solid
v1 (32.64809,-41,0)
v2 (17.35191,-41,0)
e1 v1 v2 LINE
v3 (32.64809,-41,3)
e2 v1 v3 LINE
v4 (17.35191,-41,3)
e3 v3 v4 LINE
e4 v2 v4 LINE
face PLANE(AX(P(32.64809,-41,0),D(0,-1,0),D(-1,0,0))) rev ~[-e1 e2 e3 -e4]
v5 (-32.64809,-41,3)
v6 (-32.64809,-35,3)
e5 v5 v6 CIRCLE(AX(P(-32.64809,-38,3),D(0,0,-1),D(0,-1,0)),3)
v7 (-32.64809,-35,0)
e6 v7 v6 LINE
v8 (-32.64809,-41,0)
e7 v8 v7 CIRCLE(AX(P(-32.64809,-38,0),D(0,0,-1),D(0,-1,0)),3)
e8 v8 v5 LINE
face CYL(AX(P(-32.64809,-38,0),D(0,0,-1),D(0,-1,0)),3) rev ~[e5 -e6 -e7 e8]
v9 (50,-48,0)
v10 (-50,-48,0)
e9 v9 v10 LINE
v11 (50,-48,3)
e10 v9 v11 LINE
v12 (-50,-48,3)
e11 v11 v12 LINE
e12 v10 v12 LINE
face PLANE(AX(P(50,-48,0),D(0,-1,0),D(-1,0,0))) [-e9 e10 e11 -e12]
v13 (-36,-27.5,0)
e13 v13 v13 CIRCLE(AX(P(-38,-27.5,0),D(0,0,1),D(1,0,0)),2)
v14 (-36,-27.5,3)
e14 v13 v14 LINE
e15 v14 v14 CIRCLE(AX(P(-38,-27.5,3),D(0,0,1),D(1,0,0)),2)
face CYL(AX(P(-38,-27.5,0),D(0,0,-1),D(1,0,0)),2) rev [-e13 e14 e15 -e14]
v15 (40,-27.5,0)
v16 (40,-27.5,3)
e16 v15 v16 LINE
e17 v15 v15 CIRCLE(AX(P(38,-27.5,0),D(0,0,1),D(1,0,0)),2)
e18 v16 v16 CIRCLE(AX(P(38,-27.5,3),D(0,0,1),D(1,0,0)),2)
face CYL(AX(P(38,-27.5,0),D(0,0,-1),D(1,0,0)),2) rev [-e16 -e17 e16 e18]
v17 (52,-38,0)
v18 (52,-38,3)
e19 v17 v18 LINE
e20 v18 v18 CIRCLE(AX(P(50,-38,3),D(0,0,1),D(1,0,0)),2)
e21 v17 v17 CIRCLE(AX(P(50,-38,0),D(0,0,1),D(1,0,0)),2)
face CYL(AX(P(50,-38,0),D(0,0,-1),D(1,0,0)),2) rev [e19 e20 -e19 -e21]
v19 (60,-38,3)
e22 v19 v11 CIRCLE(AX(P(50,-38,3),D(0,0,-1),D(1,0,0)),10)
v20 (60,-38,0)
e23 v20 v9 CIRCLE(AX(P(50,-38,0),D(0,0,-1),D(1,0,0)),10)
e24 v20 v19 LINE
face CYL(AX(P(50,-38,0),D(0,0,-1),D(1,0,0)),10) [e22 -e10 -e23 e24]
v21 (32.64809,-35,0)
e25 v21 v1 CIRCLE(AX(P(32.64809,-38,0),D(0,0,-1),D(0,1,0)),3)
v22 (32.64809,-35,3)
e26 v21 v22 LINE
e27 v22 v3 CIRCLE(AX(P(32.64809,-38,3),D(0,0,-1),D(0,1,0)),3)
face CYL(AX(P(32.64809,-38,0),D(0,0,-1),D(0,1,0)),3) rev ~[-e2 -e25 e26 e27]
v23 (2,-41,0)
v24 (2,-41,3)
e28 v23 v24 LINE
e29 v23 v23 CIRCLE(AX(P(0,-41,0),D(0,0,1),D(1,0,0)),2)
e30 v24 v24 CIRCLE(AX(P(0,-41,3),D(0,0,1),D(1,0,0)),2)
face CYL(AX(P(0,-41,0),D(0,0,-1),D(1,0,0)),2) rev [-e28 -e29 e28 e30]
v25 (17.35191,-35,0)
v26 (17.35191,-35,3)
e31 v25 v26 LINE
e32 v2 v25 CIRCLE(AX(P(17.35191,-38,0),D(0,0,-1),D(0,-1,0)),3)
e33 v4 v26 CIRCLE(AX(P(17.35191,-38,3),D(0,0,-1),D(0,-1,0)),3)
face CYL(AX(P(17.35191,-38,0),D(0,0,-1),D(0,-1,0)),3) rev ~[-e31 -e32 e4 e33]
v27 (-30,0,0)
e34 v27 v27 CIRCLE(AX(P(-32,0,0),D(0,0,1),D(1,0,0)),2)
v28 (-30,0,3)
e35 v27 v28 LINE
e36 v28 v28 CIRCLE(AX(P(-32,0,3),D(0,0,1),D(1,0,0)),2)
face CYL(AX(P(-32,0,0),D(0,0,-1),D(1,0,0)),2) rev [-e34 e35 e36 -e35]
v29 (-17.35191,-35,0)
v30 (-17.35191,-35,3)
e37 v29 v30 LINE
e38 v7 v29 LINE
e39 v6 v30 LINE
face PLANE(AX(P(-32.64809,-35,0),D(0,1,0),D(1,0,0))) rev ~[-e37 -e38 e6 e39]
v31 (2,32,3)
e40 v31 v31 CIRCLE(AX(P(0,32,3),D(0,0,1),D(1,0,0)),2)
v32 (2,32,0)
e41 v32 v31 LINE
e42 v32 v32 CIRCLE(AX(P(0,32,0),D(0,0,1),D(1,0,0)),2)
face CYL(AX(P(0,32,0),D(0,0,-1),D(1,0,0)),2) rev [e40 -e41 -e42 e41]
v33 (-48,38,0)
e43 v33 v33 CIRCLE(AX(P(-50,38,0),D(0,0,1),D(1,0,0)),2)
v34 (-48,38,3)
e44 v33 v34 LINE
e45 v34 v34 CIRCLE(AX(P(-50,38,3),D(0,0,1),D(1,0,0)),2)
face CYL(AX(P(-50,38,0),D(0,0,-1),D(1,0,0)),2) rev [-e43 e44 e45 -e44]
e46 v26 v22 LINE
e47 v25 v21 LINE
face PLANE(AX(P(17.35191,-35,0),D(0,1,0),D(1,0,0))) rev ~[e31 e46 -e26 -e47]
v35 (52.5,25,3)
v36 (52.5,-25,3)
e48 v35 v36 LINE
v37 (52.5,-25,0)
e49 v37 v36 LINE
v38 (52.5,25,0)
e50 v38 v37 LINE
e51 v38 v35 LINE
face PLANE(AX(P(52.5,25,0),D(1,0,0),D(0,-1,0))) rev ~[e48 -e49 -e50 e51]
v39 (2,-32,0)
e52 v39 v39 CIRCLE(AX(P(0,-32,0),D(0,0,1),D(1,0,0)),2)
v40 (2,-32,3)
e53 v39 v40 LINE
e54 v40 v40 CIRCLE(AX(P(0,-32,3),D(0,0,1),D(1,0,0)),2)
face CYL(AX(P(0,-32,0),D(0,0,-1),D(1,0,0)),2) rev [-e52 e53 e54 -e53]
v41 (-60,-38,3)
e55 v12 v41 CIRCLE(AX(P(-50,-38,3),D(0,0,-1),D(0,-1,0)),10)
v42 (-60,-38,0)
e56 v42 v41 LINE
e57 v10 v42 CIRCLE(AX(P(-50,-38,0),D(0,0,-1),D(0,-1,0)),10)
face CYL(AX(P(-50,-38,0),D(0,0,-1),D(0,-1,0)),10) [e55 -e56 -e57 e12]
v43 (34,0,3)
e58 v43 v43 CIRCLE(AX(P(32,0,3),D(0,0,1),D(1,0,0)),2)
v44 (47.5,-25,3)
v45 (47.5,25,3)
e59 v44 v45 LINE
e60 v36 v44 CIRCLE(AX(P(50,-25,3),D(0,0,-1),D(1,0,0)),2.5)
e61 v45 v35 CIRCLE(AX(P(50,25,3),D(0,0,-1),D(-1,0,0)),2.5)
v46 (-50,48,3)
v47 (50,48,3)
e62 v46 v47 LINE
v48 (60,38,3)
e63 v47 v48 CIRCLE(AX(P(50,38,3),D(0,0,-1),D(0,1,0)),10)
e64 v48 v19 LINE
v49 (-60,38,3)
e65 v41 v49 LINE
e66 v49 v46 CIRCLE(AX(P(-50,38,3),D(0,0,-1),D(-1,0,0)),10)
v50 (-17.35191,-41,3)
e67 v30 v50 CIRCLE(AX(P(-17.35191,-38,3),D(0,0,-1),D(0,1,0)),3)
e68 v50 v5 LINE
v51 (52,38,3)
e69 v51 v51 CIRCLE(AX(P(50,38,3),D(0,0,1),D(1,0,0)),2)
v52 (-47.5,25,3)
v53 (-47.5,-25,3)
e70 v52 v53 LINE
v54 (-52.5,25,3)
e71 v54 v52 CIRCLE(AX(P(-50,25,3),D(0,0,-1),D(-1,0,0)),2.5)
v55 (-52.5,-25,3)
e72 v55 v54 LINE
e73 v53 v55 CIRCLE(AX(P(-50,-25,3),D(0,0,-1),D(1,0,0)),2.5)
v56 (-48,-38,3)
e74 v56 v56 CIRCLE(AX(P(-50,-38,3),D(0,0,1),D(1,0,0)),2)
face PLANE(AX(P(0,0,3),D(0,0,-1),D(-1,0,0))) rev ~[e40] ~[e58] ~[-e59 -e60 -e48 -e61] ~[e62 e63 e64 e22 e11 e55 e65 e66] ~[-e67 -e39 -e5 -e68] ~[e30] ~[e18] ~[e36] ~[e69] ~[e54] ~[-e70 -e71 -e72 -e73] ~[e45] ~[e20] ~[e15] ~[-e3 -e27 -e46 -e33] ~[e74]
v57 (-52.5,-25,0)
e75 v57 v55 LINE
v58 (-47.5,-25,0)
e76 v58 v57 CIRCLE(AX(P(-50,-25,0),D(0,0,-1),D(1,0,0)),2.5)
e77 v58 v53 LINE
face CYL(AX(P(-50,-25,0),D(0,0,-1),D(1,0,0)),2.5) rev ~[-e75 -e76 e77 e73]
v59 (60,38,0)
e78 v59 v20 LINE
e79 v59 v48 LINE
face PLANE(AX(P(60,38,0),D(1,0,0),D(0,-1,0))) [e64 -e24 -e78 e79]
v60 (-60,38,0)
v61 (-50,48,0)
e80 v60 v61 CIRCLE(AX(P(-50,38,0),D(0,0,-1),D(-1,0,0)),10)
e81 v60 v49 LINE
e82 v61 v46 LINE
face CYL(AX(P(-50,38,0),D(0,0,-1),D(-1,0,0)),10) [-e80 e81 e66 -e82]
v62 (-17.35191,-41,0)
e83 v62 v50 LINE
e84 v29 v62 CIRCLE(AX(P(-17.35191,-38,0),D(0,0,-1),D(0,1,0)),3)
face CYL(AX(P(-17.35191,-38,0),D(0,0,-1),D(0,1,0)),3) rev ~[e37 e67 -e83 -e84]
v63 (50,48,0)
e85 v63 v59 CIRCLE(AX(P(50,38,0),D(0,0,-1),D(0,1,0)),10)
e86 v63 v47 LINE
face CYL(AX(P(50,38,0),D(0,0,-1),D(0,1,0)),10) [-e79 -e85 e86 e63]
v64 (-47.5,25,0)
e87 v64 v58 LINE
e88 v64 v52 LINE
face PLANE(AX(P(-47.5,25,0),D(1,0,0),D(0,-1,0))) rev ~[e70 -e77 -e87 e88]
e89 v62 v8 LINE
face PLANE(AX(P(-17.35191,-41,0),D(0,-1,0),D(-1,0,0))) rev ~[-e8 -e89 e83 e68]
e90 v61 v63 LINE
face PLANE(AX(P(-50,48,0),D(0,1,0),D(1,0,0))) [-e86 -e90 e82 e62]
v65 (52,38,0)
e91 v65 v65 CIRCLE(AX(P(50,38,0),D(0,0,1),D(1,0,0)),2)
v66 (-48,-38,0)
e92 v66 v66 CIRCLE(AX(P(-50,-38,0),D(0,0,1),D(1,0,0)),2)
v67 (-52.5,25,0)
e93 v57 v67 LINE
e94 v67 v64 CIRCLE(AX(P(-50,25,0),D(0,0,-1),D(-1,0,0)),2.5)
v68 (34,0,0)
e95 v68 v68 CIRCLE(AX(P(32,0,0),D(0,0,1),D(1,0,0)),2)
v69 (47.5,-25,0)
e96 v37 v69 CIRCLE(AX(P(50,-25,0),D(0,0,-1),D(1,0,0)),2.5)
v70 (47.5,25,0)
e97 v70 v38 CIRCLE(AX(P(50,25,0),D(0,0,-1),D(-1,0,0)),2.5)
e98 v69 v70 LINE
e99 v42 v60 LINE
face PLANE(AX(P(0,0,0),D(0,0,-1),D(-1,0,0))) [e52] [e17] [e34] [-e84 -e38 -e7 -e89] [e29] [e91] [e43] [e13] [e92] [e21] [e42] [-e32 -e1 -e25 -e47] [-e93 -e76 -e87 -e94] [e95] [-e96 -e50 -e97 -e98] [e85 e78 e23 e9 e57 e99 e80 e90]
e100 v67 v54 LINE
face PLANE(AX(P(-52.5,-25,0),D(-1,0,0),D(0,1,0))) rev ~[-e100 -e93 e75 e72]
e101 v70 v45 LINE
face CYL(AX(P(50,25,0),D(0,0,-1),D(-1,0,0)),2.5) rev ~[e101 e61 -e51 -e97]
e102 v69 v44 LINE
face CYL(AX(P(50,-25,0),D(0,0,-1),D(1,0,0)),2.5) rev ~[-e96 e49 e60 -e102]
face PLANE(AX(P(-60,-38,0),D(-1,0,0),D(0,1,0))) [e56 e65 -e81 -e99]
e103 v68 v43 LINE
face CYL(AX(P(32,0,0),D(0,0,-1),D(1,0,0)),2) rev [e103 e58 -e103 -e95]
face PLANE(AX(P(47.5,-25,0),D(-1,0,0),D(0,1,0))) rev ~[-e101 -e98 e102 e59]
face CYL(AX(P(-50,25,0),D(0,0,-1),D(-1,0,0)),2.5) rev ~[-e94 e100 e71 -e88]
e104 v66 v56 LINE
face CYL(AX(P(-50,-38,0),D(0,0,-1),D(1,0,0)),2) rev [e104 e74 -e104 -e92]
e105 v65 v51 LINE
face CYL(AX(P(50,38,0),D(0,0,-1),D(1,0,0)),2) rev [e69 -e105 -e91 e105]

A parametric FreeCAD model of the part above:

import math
import FreeCAD as App
import Part
import Sketcher

V = App.Vector

doc = App.newDocument("Part")
body = doc.addObject("PartDesign::Body", "Body")

sketch1 = body.newObject("Sketcher::SketchObject", "Sketch")
sketch1.AttachmentSupport = (doc.getObject("XY_Plane"), [""])
sketch1.MapMode = "FlatFace"
sketch1.addGeometry([
    Part.LineSegment(V(50, 48, 0), V(-50, 48, 0)),
    Part.ArcOfCircle(Part.Circle(V(-50, 38, 0), V(0, 0, 1), 10), math.radians(90), math.radians(180)),
    Part.LineSegment(V(-60, 38, 0), V(-60, -38, 0)),
    Part.ArcOfCircle(Part.Circle(V(-50, -38, 0), V(0, 0, 1), 10), math.radians(180), math.radians(270)),
    Part.LineSegment(V(-50, -48, 0), V(50, -48, 0)),
    Part.ArcOfCircle(Part.Circle(V(50, -38, 0), V(0, 0, 1), 10), math.radians(-90), math.radians(0)),
    Part.LineSegment(V(60, -38, 0), V(60, 38, 0)),
    Part.ArcOfCircle(Part.Circle(V(50, 38, 0), V(0, 0, 1), 10), math.radians(0), math.radians(90)),
    Part.Circle(V(50, -38, 0), V(0, 0, 1), 2),
    Part.Circle(V(38, -27.5, 0), V(0, 0, 1), 2),
    Part.LineSegment(V(17.4, -35, 0), V(32.6, -35, 0)),
    Part.ArcOfCircle(Part.Circle(V(32.6, -38, 0), V(0, 0, 1), 3), math.radians(-90), math.radians(90)),
    Part.LineSegment(V(32.6, -41, 0), V(17.4, -41, 0)),
    Part.ArcOfCircle(Part.Circle(V(17.4, -38, 0), V(0, 0, 1), 3), math.radians(90), math.radians(270)),
    Part.Circle(V(0, -41, 0), V(0, 0, 1), 2),
    Part.LineSegment(V(-32.6, -35, 0), V(-17.4, -35, 0)),
    Part.ArcOfCircle(Part.Circle(V(-17.4, -38, 0), V(0, 0, 1), 3), math.radians(-90), math.radians(90)),
    Part.LineSegment(V(-17.4, -41, 0), V(-32.6, -41, 0)),
    Part.ArcOfCircle(Part.Circle(V(-32.6, -38, 0), V(0, 0, 1), 3), math.radians(90), math.radians(270)),
    Part.Circle(V(0, -32, 0), V(0, 0, 1), 2),
    Part.Circle(V(-50, -38, 0), V(0, 0, 1), 2),
    Part.Circle(V(-38, -27.5, 0), V(0, 0, 1), 2),
    Part.LineSegment(V(52.5, 25, 0), V(52.5, -25, 0)),
    Part.ArcOfCircle(Part.Circle(V(50, -25, 0), V(0, 0, 1), 2.5), math.radians(180), math.radians(360)),
    Part.LineSegment(V(47.5, -25, 0), V(47.5, 25, 0)),
    Part.ArcOfCircle(Part.Circle(V(50, 25, 0), V(0, 0, 1), 2.5), math.radians(0), math.radians(180)),
    Part.Circle(V(32, 0, 0), V(0, 0, 1), 2),
    Part.Circle(V(50, 38, 0), V(0, 0, 1), 2),
    Part.Circle(V(-32, 0, 0), V(0, 0, 1), 2),
    Part.LineSegment(V(-47.5, 25, 0), V(-47.5, -25, 0)),
    Part.ArcOfCircle(Part.Circle(V(-50, -25, 0), V(0, 0, 1), 2.5), math.radians(180), math.radians(360)),
    Part.LineSegment(V(-52.5, -25, 0), V(-52.5, 25, 0)),
    Part.ArcOfCircle(Part.Circle(V(-50, 25, 0), V(0, 0, 1), 2.5), math.radians(0), math.radians(180)),
    Part.Circle(V(0, 32, 0), V(0, 0, 1), 2),
    Part.Circle(V(-50, 38, 0), V(0, 0, 1), 2),
], False)
sketch1.addConstraint([
    Sketcher.Constraint("Tangent", 0, 2, 1, 1),
    Sketcher.Constraint("Tangent", 1, 2, 2, 1),
    Sketcher.Constraint("Tangent", 2, 2, 3, 1),
    Sketcher.Constraint("Tangent", 3, 2, 4, 1),
    Sketcher.Constraint("Tangent", 4, 2, 5, 1),
    Sketcher.Constraint("Tangent", 5, 2, 6, 1),
    Sketcher.Constraint("Tangent", 6, 2, 7, 1),
    Sketcher.Constraint("Tangent", 7, 2, 0, 1),
    Sketcher.Constraint("Tangent", 10, 2, 11, 2),
    Sketcher.Constraint("Tangent", 11, 1, 12, 1),
    Sketcher.Constraint("Tangent", 12, 2, 13, 2),
    Sketcher.Constraint("Tangent", 13, 1, 10, 1),
    Sketcher.Constraint("Tangent", 15, 2, 16, 2),
    Sketcher.Constraint("Tangent", 16, 1, 17, 1),
    Sketcher.Constraint("Tangent", 17, 2, 18, 2),
    Sketcher.Constraint("Tangent", 18, 1, 15, 1),
    Sketcher.Constraint("Tangent", 22, 2, 23, 2),
    Sketcher.Constraint("Tangent", 23, 1, 24, 1),
    Sketcher.Constraint("Tangent", 24, 2, 25, 2),
    Sketcher.Constraint("Tangent", 25, 1, 22, 1),
    Sketcher.Constraint("Tangent", 29, 2, 30, 2),
    Sketcher.Constraint("Tangent", 30, 1, 31, 1),
    Sketcher.Constraint("Tangent", 31, 2, 32, 2),
    Sketcher.Constraint("Tangent", 32, 1, 29, 1),
    Sketcher.Constraint("Horizontal", 0),
    Sketcher.Constraint("Vertical", 2),
    Sketcher.Constraint("Horizontal", 4),
    Sketcher.Constraint("Vertical", 6),
    Sketcher.Constraint("Horizontal", 10),
    Sketcher.Constraint("Horizontal", 12),
    Sketcher.Constraint("Horizontal", 15),
    Sketcher.Constraint("Horizontal", 17),
    Sketcher.Constraint("Vertical", 22),
    Sketcher.Constraint("Vertical", 24),
    Sketcher.Constraint("Vertical", 29),
    Sketcher.Constraint("Vertical", 31),
    Sketcher.Constraint("Coincident", 8, 3, 5, 3),
    Sketcher.Constraint("Coincident", 20, 3, 3, 3),
    Sketcher.Constraint("Coincident", 27, 3, 7, 3),
    Sketcher.Constraint("Coincident", 34, 3, 1, 3),
    Sketcher.Constraint("Equal", 1, 3),
    Sketcher.Constraint("Equal", 3, 5),
    Sketcher.Constraint("Equal", 5, 7),
    Sketcher.Constraint("Equal", 8, 9),
    Sketcher.Constraint("Equal", 9, 14),
    Sketcher.Constraint("Equal", 13, 16),
    Sketcher.Constraint("Equal", 14, 19),
    Sketcher.Constraint("Equal", 19, 20),
    Sketcher.Constraint("Equal", 20, 21),
    Sketcher.Constraint("Equal", 21, 26),
    Sketcher.Constraint("Equal", 26, 27),
    Sketcher.Constraint("Equal", 27, 28),
    Sketcher.Constraint("Equal", 25, 30),
    Sketcher.Constraint("Equal", 28, 33),
    Sketcher.Constraint("Equal", 33, 34),
    Sketcher.Constraint("Symmetric", 1, 3, 5, 3, -1, 1),
    Sketcher.Constraint("Symmetric", 26, 3, 28, 3, -1, 1),
    Sketcher.Constraint("Symmetric", 25, 3, 30, 3, -1, 1),
    Sketcher.Constraint("Symmetric", 19, 3, 33, 3, -1, 1),
    Sketcher.Constraint("Symmetric", 13, 3, 16, 3, -2),
    Sketcher.Constraint("Symmetric", 9, 3, 21, 3, -2),
    Sketcher.Constraint("PointOnObject", 14, 3, -2),
    Sketcher.Constraint("PointOnObject", 19, 3, -2),
    Sketcher.Constraint("PointOnObject", 26, 3, -1),
    Sketcher.Constraint("Horizontal", 8, 3, 11, 3),
    Sketcher.Constraint("Horizontal", 23, 3, 30, 3),
    Sketcher.Constraint("Horizontal", 25, 3, 32, 3),
    Sketcher.Constraint("Horizontal", 14, 3, 11, 1),
    Sketcher.Constraint("Vertical", 8, 3, 23, 3),
    Sketcher.Constraint("Equal", 12, 15),
    Sketcher.Constraint("Diameter", 8, 4.0),
    Sketcher.Constraint("Radius", 1, 10.0),
    Sketcher.Constraint("Radius", 11, 3.0),
    Sketcher.Constraint("Radius", 23, 2.5),
    Sketcher.Constraint("DistanceX", 0, 2, 0, 1, 100.0),
    Sketcher.Constraint("DistanceY", 2, 2, 2, 1, 76.0),
    Sketcher.Constraint("DistanceY", 22, 2, 22, 1, 50.0),
    Sketcher.Constraint("DistanceX", -1, 1, 9, 3, 38.0),
    Sketcher.Constraint("DistanceY", 19, 3, -1, 1, 32.0),
    Sketcher.Constraint("DistanceX", -1, 1, 26, 3, 32.0),
    Sketcher.Constraint("DistanceX", 16, 3, 11, 3, 50.0),
    Sketcher.Constraint("DistanceY", 9, 3, -1, 1, 27.5),
    Sketcher.Constraint("DistanceX", 10, 1, 10, 2, 15.296179),
])
pad1 = body.newObject("PartDesign::Pad", "Pad")
pad1.Profile = sketch1
pad1.Length = 3

doc.recompute()
